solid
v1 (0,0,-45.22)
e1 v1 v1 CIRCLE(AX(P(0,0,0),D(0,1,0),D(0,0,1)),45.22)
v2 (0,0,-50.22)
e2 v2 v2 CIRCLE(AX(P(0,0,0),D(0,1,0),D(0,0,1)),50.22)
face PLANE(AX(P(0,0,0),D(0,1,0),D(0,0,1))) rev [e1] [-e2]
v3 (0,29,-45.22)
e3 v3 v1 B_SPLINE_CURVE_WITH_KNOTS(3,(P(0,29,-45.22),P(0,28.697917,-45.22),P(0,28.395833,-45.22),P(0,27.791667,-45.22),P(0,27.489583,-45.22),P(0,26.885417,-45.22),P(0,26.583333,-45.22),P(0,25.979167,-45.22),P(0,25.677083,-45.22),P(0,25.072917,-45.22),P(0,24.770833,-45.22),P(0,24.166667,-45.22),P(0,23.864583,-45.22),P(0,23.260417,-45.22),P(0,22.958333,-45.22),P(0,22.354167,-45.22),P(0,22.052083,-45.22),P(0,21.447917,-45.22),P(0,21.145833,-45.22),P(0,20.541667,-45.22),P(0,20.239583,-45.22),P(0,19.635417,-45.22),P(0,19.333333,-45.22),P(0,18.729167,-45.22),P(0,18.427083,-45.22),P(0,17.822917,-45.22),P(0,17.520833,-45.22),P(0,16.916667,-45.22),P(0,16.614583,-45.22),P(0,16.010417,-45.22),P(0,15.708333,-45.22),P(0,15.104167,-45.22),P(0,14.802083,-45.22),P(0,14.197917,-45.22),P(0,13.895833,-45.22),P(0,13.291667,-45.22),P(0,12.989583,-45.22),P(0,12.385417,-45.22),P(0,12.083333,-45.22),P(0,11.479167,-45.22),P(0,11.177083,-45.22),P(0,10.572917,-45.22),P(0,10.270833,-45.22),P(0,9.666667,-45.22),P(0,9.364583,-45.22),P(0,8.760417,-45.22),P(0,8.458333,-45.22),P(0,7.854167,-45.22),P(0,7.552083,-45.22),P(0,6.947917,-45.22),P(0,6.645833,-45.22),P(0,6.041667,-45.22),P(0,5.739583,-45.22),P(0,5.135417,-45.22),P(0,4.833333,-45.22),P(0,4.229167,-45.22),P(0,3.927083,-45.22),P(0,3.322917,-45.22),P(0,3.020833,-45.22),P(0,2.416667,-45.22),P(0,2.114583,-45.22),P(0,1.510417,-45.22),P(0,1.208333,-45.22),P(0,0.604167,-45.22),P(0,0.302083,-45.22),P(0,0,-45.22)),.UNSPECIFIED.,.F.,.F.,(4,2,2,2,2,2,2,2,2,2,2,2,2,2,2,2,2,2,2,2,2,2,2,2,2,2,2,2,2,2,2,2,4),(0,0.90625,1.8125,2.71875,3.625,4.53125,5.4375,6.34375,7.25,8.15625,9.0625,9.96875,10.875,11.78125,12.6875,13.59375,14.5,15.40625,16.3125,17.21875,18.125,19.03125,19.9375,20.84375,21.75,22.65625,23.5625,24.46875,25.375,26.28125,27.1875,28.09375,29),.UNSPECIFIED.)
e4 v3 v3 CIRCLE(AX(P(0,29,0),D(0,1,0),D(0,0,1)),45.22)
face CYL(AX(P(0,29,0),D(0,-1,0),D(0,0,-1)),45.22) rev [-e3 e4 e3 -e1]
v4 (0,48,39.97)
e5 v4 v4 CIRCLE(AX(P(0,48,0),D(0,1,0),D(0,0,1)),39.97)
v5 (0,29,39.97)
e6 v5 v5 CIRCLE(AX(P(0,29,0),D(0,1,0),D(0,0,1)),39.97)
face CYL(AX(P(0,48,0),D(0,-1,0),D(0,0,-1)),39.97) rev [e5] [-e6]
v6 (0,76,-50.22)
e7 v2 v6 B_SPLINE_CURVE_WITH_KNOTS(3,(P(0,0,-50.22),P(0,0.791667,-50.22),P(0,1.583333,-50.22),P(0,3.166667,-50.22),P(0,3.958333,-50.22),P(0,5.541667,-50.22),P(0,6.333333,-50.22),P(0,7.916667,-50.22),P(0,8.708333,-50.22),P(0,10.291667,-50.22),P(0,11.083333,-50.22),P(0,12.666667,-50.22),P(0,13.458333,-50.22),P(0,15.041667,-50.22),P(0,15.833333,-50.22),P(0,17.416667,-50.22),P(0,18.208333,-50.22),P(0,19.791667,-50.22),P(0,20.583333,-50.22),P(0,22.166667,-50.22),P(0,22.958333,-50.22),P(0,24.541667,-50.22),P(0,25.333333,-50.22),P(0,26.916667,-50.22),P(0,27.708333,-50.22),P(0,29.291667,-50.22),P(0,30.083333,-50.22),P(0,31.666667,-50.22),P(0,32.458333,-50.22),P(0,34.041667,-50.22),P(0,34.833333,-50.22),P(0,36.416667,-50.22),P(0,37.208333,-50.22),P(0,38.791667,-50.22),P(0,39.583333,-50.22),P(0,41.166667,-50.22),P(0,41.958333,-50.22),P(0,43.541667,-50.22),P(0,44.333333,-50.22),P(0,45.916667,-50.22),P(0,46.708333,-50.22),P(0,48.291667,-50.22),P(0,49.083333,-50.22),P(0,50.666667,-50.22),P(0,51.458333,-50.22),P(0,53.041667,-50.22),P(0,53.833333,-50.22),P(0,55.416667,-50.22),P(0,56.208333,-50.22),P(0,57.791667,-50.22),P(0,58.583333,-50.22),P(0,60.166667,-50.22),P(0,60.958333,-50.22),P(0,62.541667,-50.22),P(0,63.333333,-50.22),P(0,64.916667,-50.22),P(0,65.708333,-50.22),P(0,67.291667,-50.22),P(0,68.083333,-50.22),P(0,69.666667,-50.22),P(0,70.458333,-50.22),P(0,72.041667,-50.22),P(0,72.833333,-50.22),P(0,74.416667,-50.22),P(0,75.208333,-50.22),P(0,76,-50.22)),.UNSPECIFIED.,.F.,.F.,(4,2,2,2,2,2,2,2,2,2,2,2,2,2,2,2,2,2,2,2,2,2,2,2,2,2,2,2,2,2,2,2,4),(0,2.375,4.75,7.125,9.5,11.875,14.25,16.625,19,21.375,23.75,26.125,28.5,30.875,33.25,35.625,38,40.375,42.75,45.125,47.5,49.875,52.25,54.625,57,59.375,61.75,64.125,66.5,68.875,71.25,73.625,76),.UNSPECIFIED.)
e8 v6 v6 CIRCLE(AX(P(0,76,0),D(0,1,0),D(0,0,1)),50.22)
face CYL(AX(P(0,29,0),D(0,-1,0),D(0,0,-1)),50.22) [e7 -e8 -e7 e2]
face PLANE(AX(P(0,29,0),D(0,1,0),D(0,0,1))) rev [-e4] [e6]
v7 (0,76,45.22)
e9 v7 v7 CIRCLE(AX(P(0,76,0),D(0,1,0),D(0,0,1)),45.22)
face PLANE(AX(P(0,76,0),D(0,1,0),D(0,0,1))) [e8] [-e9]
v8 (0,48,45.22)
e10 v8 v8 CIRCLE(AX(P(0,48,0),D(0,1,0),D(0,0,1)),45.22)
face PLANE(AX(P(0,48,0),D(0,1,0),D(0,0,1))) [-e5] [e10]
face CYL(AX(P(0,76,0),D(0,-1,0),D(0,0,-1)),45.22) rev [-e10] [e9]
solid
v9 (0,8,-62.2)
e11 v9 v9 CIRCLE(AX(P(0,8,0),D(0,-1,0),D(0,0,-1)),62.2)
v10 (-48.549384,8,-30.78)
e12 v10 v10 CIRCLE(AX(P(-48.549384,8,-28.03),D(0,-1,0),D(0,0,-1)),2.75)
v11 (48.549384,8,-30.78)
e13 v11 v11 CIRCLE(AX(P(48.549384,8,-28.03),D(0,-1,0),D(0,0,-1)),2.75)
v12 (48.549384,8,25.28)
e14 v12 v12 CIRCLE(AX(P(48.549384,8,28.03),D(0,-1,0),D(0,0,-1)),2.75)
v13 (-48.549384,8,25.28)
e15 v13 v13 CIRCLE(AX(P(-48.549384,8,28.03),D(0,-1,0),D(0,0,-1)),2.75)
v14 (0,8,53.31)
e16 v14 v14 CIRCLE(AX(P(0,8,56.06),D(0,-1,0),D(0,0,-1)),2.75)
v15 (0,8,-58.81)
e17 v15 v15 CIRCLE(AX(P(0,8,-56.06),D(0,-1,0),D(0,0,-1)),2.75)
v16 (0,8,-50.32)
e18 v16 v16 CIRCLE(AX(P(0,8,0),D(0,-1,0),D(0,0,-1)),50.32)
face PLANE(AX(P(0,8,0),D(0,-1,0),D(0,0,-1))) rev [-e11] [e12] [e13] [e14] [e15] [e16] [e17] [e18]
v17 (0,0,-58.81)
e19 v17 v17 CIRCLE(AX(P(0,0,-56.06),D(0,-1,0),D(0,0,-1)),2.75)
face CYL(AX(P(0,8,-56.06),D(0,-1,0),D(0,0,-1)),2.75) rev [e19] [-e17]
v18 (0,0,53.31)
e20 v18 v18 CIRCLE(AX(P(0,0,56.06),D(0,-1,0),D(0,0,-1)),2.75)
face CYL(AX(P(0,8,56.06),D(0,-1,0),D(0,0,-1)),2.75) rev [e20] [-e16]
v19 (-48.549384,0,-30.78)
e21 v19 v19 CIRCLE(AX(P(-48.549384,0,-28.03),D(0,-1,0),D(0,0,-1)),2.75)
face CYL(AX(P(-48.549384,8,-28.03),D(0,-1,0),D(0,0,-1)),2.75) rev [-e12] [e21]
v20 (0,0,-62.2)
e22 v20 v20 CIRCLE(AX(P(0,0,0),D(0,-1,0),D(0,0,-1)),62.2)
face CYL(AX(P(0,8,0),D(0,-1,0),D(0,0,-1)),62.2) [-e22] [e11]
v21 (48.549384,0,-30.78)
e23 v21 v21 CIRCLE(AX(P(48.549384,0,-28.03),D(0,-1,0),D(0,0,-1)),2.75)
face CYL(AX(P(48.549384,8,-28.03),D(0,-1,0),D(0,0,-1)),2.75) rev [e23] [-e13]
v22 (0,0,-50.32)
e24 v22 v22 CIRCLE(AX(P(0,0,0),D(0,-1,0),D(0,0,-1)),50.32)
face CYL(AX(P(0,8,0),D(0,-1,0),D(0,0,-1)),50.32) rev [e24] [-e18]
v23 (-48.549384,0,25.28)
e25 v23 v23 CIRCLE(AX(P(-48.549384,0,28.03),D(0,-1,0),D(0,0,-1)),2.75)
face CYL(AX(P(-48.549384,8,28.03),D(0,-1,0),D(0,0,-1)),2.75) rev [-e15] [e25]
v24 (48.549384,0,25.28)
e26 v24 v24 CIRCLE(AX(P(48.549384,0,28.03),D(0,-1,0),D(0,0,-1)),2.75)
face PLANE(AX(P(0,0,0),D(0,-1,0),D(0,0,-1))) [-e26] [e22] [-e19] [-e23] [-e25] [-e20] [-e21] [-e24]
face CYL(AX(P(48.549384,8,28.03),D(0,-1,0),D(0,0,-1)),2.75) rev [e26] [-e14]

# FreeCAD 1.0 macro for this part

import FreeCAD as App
import Part
import Sketcher

V = App.Vector
Q = App.Units.Quantity

doc = App.newDocument("Part")
params = doc.addObject("Spreadsheet::Sheet", "Params")
for row, (alias, value) in enumerate([
    ("sketch1_diameter", "100.44 mm"),
    ("sketch1_diameter2", "90.44 mm"),
    ("pad1_length", "29 mm"),
    ("sketch2_diameter", "100.44 mm"),
    ("sketch2_diameter2", "79.94 mm"),
    ("pad2_length", "19 mm"),
    ("sketch3_diameter", "100.44 mm"),
    ("sketch3_diameter2", "90.44 mm"),
    ("pad3_length", "28 mm"),
    ("sketch4_diameter", "124.4 mm"),
    ("sketch4_diameter2", "5.5 mm"),
    ("sketch4_diameter3", "100.64 mm"),
    ("pad4_length", "8 mm"),
], start=1):
    params.set(f"A{row}", alias)
    params.set(f"B{row}", "=" + value)
    params.setAlias(f"B{row}", alias)

body = doc.addObject("PartDesign::Body", "Body")

sketch1 = doc.addObject("Sketcher::SketchObject", "Sketch")
body.addObject(sketch1)
sketch1.AttachmentSupport = (doc.XZ_Plane, [""])
sketch1.MapMode = "FlatFace"
sketch1.addGeometry([
    Part.Circle(V(0, 0, 0), V(0, 0, 1), 50),
    Part.Circle(V(0, 0, 0), V(0, 0, 1), 45),
], False)
sketch1.addConstraint([
    Sketcher.Constraint("Coincident", 0, 3, -1, 1),
    Sketcher.Constraint("Coincident", 1, 3, -1, 1),
    Sketcher.Constraint("Diameter", 0, Q("100.44 mm")),
    Sketcher.Constraint("Diameter", 1, Q("90.44 mm")),
])
sketch1.setExpression("Constraints[2]", "Params.sketch1_diameter")
sketch1.setExpression("Constraints[3]", "Params.sketch1_diameter2")
pad1 = doc.addObject("PartDesign::Pad", "Pad")
body.addObject(pad1)
pad1.Profile = sketch1
pad1.setExpression("Length", "Params.pad1_length")
pad1.Reversed = True

sketch2 = doc.addObject("Sketcher::SketchObject", "Sketch001")
body.addObject(sketch2)
sketch2.AttachmentSupport = (doc.XZ_Plane, [""])
sketch2.MapMode = "FlatFace"
sketch2.AttachmentOffset = App.Placement(V(0, 0, -29), App.Rotation())
sketch2.addGeometry([
    Part.Circle(V(0, 0, 0), V(0, 0, 1), 50),
    Part.Circle(V(0, 0, 0), V(0, 0, 1), 40),
], False)
sketch2.addConstraint([
    Sketcher.Constraint("Coincident", 0, 3, -1, 1),
    Sketcher.Constraint("Coincident", 1, 3, -1, 1),
    Sketcher.Constraint("Diameter", 0, Q("100.44 mm")),
    Sketcher.Constraint("Diameter", 1, Q("79.94 mm")),
])
sketch2.setExpression("Constraints[2]", "Params.sketch2_diameter")
sketch2.setExpression("Constraints[3]", "Params.sketch2_diameter2")
pad2 = doc.addObject("PartDesign::Pad", "Pad001")
body.addObject(pad2)
pad2.Profile = sketch2
pad2.setExpression("Length", "Params.pad2_length")
pad2.Reversed = True

sketch3 = doc.addObject("Sketcher::SketchObject", "Sketch002")
body.addObject(sketch3)
sketch3.AttachmentSupport = (doc.XZ_Plane, [""])
sketch3.MapMode = "FlatFace"
sketch3.AttachmentOffset = App.Placement(V(0, 0, -48), App.Rotation())
sketch3.addGeometry([
    Part.Circle(V(0, 0, 0), V(0, 0, 1), 50),
    Part.Circle(V(0, 0, 0), V(0, 0, 1), 45),
], False)
sketch3.addConstraint([
    Sketcher.Constraint("Coincident", 0, 3, -1, 1),
    Sketcher.Constraint("Coincident", 1, 3, -1, 1),
    Sketcher.Constraint("Diameter", 0, Q("100.44 mm")),
    Sketcher.Constraint("Diameter", 1, Q("90.44 mm")),
])
sketch3.setExpression("Constraints[2]", "Params.sketch3_diameter")
sketch3.setExpression("Constraints[3]", "Params.sketch3_diameter2")
pad3 = doc.addObject("PartDesign::Pad", "Pad002")
body.addObject(pad3)
pad3.Profile = sketch3
pad3.setExpression("Length", "Params.pad3_length")
pad3.Reversed = True
body2 = doc.addObject("PartDesign::Body", "Body001")

sketch4 = doc.addObject("Sketcher::SketchObject", "Sketch003")
body2.addObject(sketch4)
sketch4.AttachmentSupport = (doc.getObject("XZ_Plane001"), [""])
sketch4.MapMode = "FlatFace"
sketch4.addGeometry([
    Part.Circle(V(0, 0, 0), V(0, 0, 1), 62.2),
    Part.Circle(V(-48.5, 28, 0), V(0, 0, 1), 2.8),
    Part.Circle(V(0, 56.1, 0), V(0, 0, 1), 2.8),
    Part.Circle(V(-48.5, -28, 0), V(0, 0, 1), 2.8),
    Part.Circle(V(48.5, 28, 0), V(0, 0, 1), 2.8),
    Part.Circle(V(0, 0, 0), V(0, 0, 1), 50.3),
    Part.Circle(V(0, -56.1, 0), V(0, 0, 1), 2.8),
    Part.Circle(V(48.5, -28, 0), V(0, 0, 1), 2.8),
], False)
sketch4.addConstraint([
    Sketcher.Constraint("Coincident", 0, 3, -1, 1),
    Sketcher.Constraint("Coincident", 5, 3, -1, 1),
    Sketcher.Constraint("Equal", 1, 2),
    Sketcher.Constraint("Equal", 2, 3),
    Sketcher.Constraint("Equal", 3, 4),
    Sketcher.Constraint("Equal", 4, 6),
    Sketcher.Constraint("Equal", 6, 7),
    Sketcher.Constraint("Symmetric", 3, 3, 4, 3, -1, 1),
    Sketcher.Constraint("Symmetric", 2, 3, 6, 3, -1, 1),
    Sketcher.Constraint("Symmetric", 1, 3, 7, 3, -1, 1),
    Sketcher.Constraint("Symmetric", 1, 3, 4, 3, -2),
    Sketcher.Constraint("PointOnObject", 2, 3, -2),
    Sketcher.Constraint("Diameter", 0, Q("124.4 mm")),
    Sketcher.Constraint("Diameter", 1, Q("5.5 mm")),
    Sketcher.Constraint("Diameter", 5, Q("100.64 mm")),
    Sketcher.Constraint("DistanceY", -1, 1, 1, 3, Q("28.03 mm")),
    Sketcher.Constraint("DistanceY", -1, 1, 2, 3, Q("56.06 mm")),
    Sketcher.Constraint("DistanceX", 1, 3, 4, 3, Q("97.098768 mm")),
])
sketch4.setExpression("Constraints[12]", "Params.sketch4_diameter")
sketch4.setExpression("Constraints[13]", "Params.sketch4_diameter2")
sketch4.setExpression("Constraints[14]", "Params.sketch4_diameter3")
pad4 = doc.addObject("PartDesign::Pad", "Pad003")
body2.addObject(pad4)
pad4.Profile = sketch4
pad4.setExpression("Length", "Params.pad4_length")
pad4.Reversed = True

doc.recompute()
